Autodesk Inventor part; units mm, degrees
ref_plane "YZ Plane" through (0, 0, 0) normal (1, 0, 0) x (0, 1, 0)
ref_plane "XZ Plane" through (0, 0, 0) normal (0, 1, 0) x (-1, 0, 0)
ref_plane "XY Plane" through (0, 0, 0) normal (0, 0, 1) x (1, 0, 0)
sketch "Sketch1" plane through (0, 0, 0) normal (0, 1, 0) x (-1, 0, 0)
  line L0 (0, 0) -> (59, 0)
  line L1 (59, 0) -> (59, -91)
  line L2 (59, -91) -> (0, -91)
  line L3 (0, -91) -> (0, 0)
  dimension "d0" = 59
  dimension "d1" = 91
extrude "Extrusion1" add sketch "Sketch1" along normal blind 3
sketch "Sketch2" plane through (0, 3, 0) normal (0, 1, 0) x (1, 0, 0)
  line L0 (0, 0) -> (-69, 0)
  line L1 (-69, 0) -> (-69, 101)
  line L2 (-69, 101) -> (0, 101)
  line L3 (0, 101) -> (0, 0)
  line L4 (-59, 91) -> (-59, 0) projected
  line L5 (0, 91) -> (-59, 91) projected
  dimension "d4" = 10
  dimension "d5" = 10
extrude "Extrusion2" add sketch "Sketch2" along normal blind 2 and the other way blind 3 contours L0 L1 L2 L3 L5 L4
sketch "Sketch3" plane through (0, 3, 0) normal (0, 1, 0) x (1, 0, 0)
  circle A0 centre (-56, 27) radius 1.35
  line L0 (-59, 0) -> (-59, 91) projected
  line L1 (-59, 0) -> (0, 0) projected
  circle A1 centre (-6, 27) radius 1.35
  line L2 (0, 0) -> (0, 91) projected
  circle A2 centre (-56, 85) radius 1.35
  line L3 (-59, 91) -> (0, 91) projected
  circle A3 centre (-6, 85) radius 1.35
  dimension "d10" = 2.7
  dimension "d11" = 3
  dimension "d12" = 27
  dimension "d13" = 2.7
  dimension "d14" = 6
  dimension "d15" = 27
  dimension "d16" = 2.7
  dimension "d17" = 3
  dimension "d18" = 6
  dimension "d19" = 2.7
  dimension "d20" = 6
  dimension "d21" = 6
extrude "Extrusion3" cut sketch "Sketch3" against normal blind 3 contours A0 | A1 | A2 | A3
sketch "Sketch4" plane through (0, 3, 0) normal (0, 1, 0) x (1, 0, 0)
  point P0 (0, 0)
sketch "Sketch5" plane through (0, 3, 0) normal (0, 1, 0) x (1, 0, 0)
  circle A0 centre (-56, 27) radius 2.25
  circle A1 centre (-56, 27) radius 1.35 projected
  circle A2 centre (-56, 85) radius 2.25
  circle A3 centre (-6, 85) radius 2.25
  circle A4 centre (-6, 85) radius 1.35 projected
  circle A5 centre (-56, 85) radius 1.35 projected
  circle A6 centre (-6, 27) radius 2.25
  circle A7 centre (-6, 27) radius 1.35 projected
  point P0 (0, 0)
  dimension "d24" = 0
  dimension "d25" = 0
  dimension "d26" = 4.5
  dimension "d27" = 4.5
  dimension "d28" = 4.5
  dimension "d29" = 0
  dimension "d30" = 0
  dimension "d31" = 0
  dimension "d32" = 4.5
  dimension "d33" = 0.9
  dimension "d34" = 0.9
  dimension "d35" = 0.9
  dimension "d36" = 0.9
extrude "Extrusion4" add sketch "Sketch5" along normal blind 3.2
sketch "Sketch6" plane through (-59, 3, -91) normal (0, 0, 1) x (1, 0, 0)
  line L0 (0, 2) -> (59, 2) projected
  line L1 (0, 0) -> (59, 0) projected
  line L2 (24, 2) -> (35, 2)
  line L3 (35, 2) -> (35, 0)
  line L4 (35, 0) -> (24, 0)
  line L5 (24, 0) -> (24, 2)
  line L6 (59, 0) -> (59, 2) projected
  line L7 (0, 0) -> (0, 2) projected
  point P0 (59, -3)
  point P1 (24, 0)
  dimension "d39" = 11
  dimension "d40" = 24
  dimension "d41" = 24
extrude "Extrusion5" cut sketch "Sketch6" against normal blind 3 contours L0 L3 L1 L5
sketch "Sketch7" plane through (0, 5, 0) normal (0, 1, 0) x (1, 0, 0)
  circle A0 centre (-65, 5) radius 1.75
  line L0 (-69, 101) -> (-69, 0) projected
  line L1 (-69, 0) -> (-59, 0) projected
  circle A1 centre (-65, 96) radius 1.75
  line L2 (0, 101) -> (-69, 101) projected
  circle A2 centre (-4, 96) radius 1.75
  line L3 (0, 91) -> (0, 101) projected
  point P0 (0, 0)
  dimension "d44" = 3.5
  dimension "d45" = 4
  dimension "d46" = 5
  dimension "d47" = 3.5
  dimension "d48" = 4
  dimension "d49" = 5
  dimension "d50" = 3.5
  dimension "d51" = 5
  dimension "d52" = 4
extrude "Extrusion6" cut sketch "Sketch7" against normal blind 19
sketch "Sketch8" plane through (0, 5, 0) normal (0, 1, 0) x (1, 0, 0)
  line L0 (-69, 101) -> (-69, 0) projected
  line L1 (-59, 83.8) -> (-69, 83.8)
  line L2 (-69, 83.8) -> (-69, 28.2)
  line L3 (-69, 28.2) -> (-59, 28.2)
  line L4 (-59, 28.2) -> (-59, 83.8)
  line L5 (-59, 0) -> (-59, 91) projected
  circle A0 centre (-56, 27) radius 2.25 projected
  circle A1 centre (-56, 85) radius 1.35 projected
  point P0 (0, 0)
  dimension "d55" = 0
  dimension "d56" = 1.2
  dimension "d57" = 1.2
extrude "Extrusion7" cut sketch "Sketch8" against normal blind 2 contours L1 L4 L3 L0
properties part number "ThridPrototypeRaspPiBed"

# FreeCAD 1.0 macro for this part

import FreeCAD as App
import Part
import Sketcher
from FreeCAD import Vector


def add_polygon(sketch, points):
    """Adds a closed chain of lines whose ends are joined by coincident constraints."""
    first, n = sketch.GeometryCount, len(points)
    for a, b in zip(points, points[1:] + points[:1]):
        sketch.addGeometry(Part.LineSegment(App.Vector(*a, 0), App.Vector(*b, 0)), False)
    for i in range(n):
        sketch.addConstraint(Sketcher.Constraint("Coincident", first + i, 2, first + (i + 1) % n, 1))

doc = App.newDocument("Part")
params = doc.addObject("Spreadsheet::Sheet", "Params")
for row, (alias, value) in enumerate([
    ("sketch1_width", "59 mm"),
    ("sketch1_height", "91 mm"),
    ("pad1_length", "3 mm"),
    ("sketch2_width", "10 mm"),
    ("sketch2_width2", "59 mm"),
    ("sketch2_height", "91 mm"),
    ("pad2_length", "2 mm"),
    ("pad2_length2", "3 mm"),
    ("sketch3_diameter", "2.7 mm"),
    ("pocket1_length", "3 mm"),
    ("sketch4_diameter", "4.5 mm"),
    ("sketch4_diameter2", "2.7 mm"),
    ("pad3_length", "3.2 mm"),
    ("sketch5_width", "11 mm"),
    ("sketch5_height", "2 mm"),
    ("pocket2_length", "3 mm"),
    ("sketch6_diameter", "3.5 mm"),
    ("pocket3_length", "19 mm"),
    ("sketch7_width", "10 mm"),
    ("sketch7_height", "55.6 mm"),
    ("pocket4_length", "2 mm"),
], start=1):
    params.set(f"A{row}", alias)
    params.set(f"B{row}", "=" + value)
    params.setAlias(f"B{row}", alias)

body = doc.addObject("PartDesign::Body", "Body")

sketch1 = body.newObject("Sketcher::SketchObject", "Sketch")
sketch1.AttachmentSupport = (doc.getObject("XZ_Plane"), [""])
sketch1.MapMode = "FlatFace"
add_polygon(sketch1, [(-59, 0), (0, 0), (0, -91), (-59, -91)])
sketch1.addConstraint(Sketcher.Constraint("Horizontal", 0))
sketch1.addConstraint(Sketcher.Constraint("Vertical", 1))
sketch1.addConstraint(Sketcher.Constraint("Horizontal", 2))
sketch1.addConstraint(Sketcher.Constraint("Vertical", 3))
sketch1.addConstraint(Sketcher.Constraint("Coincident", 0, 2, -1, 1))
sketch1.addConstraint(Sketcher.Constraint("DistanceX", 0, 1, 0, 2, 59.0))
sketch1.addConstraint(Sketcher.Constraint("DistanceY", 1, 2, 1, 1, 91.0))
sketch1.setExpression("Constraints[9]", "Params.sketch1_width")
sketch1.setExpression("Constraints[10]", "Params.sketch1_height")
pad1 = body.newObject("PartDesign::Pad", "Pad")
pad1.Profile = sketch1
pad1.setExpression("Length", "Params.pad1_length")
pad1.Reversed = True

sketch2 = body.newObject("Sketcher::SketchObject", "Sketch001")
sketch2.AttachmentSupport = (doc.getObject("XZ_Plane"), [""])
sketch2.MapMode = "FlatFace"
sketch2.AttachmentOffset = App.Placement(Vector(0, 0, -3), App.Rotation())
add_polygon(sketch2, [(-69, 0), (-59, 0), (-59, -91), (0, -91), (0, -101), (-69, -101)])
sketch2.addConstraint(Sketcher.Constraint("Horizontal", 0))
sketch2.addConstraint(Sketcher.Constraint("Vertical", 1))
sketch2.addConstraint(Sketcher.Constraint("Horizontal", 2))
sketch2.addConstraint(Sketcher.Constraint("Vertical", 3))
sketch2.addConstraint(Sketcher.Constraint("Horizontal", 4))
sketch2.addConstraint(Sketcher.Constraint("Vertical", 5))
sketch2.addConstraint(Sketcher.Constraint("PointOnObject", 0, 2, -1))
sketch2.addConstraint(Sketcher.Constraint("PointOnObject", 2, 2, -2))
sketch2.addConstraint(Sketcher.Constraint("Equal", 0, 3))
sketch2.addConstraint(Sketcher.Constraint("DistanceX", 0, 1, 0, 2, 10.0))
sketch2.addConstraint(Sketcher.Constraint("DistanceX", 2, 1, 2, 2, 59.0))
sketch2.addConstraint(Sketcher.Constraint("DistanceY", 1, 2, 1, 1, 91.0))
sketch2.setExpression("Constraints[15]", "Params.sketch2_width")
sketch2.setExpression("Constraints[16]", "Params.sketch2_width2")
sketch2.setExpression("Constraints[17]", "Params.sketch2_height")
pad2 = body.newObject("PartDesign::Pad", "Pad001")
pad2.Profile = sketch2
pad2.Type = "TwoLengths"
pad2.setExpression("Length", "Params.pad2_length")
pad2.setExpression("Length2", "Params.pad2_length2")
pad2.Reversed = True

sketch3 = body.newObject("Sketcher::SketchObject", "Sketch002")
sketch3.AttachmentSupport = (doc.getObject("XZ_Plane"), [""])
sketch3.MapMode = "FlatFace"
sketch3.AttachmentOffset = App.Placement(Vector(0, 0, -3), App.Rotation())
sketch3.addGeometry(Part.Circle(Vector(-56, -27, 0), Vector(0, 0, 1), 1.35), False)
sketch3.addGeometry(Part.Circle(Vector(-6, -27, 0), Vector(0, 0, 1), 1.35), False)
sketch3.addGeometry(Part.Circle(Vector(-56, -85, 0), Vector(0, 0, 1), 1.35), False)
sketch3.addGeometry(Part.Circle(Vector(-6, -85, 0), Vector(0, 0, 1), 1.35), False)
sketch3.addConstraint(Sketcher.Constraint("Equal", 0, 1))
sketch3.addConstraint(Sketcher.Constraint("Equal", 1, 2))
sketch3.addConstraint(Sketcher.Constraint("Equal", 2, 3))
sketch3.addConstraint(Sketcher.Constraint("Horizontal", 0, 3, 1, 3))
sketch3.addConstraint(Sketcher.Constraint("Horizontal", 2, 3, 3, 3))
sketch3.addConstraint(Sketcher.Constraint("Vertical", 0, 3, 2, 3))
sketch3.addConstraint(Sketcher.Constraint("Vertical", 1, 3, 3, 3))
sketch3.addConstraint(Sketcher.Constraint("Diameter", 0, 2.7))
sketch3.addConstraint(Sketcher.Constraint("DistanceY", 0, 3, -1, 1, 27.0))
sketch3.addConstraint(Sketcher.Constraint("DistanceX", 1, 3, -1, 1, 6.0))
sketch3.addConstraint(Sketcher.Constraint("DistanceX", 0, 3, -1, 1, 56.0))
sketch3.addConstraint(Sketcher.Constraint("DistanceY", 2, 3, -1, 1, 85.0))
sketch3.setExpression("Constraints[7]", "Params.sketch3_diameter")
pocket1 = body.newObject("PartDesign::Pocket", "Pocket")
pocket1.Profile = sketch3
pocket1.setExpression("Length", "Params.pocket1_length")
pocket1.Reversed = True

sketch4 = body.newObject("Sketcher::SketchObject", "Sketch003")
sketch4.AttachmentSupport = (doc.getObject("XZ_Plane"), [""])
sketch4.MapMode = "FlatFace"
sketch4.AttachmentOffset = App.Placement(Vector(0, 0, -3), App.Rotation())
sketch4.addGeometry(Part.Circle(Vector(-56, -27, 0), Vector(0, 0, 1), 2.25), False)
sketch4.addGeometry(Part.Circle(Vector(-56, -27, 0), Vector(0, 0, 1), 1.35), False)
sketch4.addGeometry(Part.Circle(Vector(-56, -85, 0), Vector(0, 0, 1), 2.25), False)
sketch4.addGeometry(Part.Circle(Vector(-56, -85, 0), Vector(0, 0, 1), 1.35), False)
sketch4.addGeometry(Part.Circle(Vector(-6, -85, 0), Vector(0, 0, 1), 2.25), False)
sketch4.addGeometry(Part.Circle(Vector(-6, -85, 0), Vector(0, 0, 1), 1.35), False)
sketch4.addGeometry(Part.Circle(Vector(-6, -27, 0), Vector(0, 0, 1), 2.25), False)
sketch4.addGeometry(Part.Circle(Vector(-6, -27, 0), Vector(0, 0, 1), 1.35), False)
sketch4.addConstraint(Sketcher.Constraint("Coincident", 1, 3, 0, 3))
sketch4.addConstraint(Sketcher.Constraint("Coincident", 3, 3, 2, 3))
sketch4.addConstraint(Sketcher.Constraint("Coincident", 5, 3, 4, 3))
sketch4.addConstraint(Sketcher.Constraint("Coincident", 7, 3, 6, 3))
sketch4.addConstraint(Sketcher.Constraint("Equal", 0, 2))
sketch4.addConstraint(Sketcher.Constraint("Equal", 1, 3))
sketch4.addConstraint(Sketcher.Constraint("Equal", 2, 4))
sketch4.addConstraint(Sketcher.Constraint("Equal", 3, 5))
sketch4.addConstraint(Sketcher.Constraint("Equal", 4, 6))
sketch4.addConstraint(Sketcher.Constraint("Equal", 5, 7))
sketch4.addConstraint(Sketcher.Constraint("Horizontal", 3, 3, 4, 3))
sketch4.addConstraint(Sketcher.Constraint("Horizontal", 1, 3, 6, 3))
sketch4.addConstraint(Sketcher.Constraint("Vertical", 1, 3, 2, 3))
sketch4.addConstraint(Sketcher.Constraint("Vertical", 5, 3, 6, 3))
sketch4.addConstraint(Sketcher.Constraint("Diameter", 0, 4.5))
sketch4.addConstraint(Sketcher.Constraint("Diameter", 1, 2.7))
sketch4.addConstraint(Sketcher.Constraint("DistanceX", 0, 3, -1, 1, 56.0))
sketch4.addConstraint(Sketcher.Constraint("DistanceY", 0, 3, -1, 1, 27.0))
sketch4.addConstraint(Sketcher.Constraint("DistanceY", 2, 3, -1, 1, 85.0))
sketch4.addConstraint(Sketcher.Constraint("DistanceX", 4, 3, -1, 1, 6.0))
sketch4.setExpression("Constraints[14]", "Params.sketch4_diameter")
sketch4.setExpression("Constraints[15]", "Params.sketch4_diameter2")
pad3 = body.newObject("PartDesign::Pad", "Pad002")
pad3.Profile = sketch4
pad3.setExpression("Length", "Params.pad3_length")
pad3.Reversed = True

sketch5 = body.newObject("Sketcher::SketchObject", "Sketch004")
sketch5.AttachmentSupport = (doc.getObject("XY_Plane"), [""])
sketch5.MapMode = "FlatFace"
sketch5.AttachmentOffset = App.Placement(Vector(0, 0, -91), App.Rotation())
add_polygon(sketch5, [(-24, 5), (-35, 5), (-35, 3), (-24, 3)])
sketch5.addConstraint(Sketcher.Constraint("Horizontal", 0))
sketch5.addConstraint(Sketcher.Constraint("Vertical", 1))
sketch5.addConstraint(Sketcher.Constraint("Horizontal", 2))
sketch5.addConstraint(Sketcher.Constraint("Vertical", 3))
sketch5.addConstraint(Sketcher.Constraint("DistanceX", 0, 2, 0, 1, 11.0))
sketch5.addConstraint(Sketcher.Constraint("DistanceX", 2, 2, -1, 1, 24.0))
sketch5.addConstraint(Sketcher.Constraint("DistanceY", 1, 2, 1, 1, 2.0))
sketch5.addConstraint(Sketcher.Constraint("DistanceY", -1, 1, 0, 2, 5.0))
sketch5.setExpression("Constraints[8]", "Params.sketch5_width")
sketch5.setExpression("Constraints[10]", "Params.sketch5_height")
pocket2 = body.newObject("PartDesign::Pocket", "Pocket001")
pocket2.Profile = sketch5
pocket2.setExpression("Length", "Params.pocket2_length")

sketch6 = body.newObject("Sketcher::SketchObject", "Sketch005")
sketch6.AttachmentSupport = (doc.getObject("XZ_Plane"), [""])
sketch6.MapMode = "FlatFace"
sketch6.AttachmentOffset = App.Placement(Vector(0, 0, -5), App.Rotation())
sketch6.addGeometry(Part.Circle(Vector(-65, -5, 0), Vector(0, 0, 1), 1.75), False)
sketch6.addGeometry(Part.Circle(Vector(-65, -96, 0), Vector(0, 0, 1), 1.75), False)
sketch6.addGeometry(Part.Circle(Vector(-4, -96, 0), Vector(0, 0, 1), 1.75), False)
sketch6.addConstraint(Sketcher.Constraint("Equal", 0, 1))
sketch6.addConstraint(Sketcher.Constraint("Equal", 1, 2))
sketch6.addConstraint(Sketcher.Constraint("Horizontal", 1, 3, 2, 3))
sketch6.addConstraint(Sketcher.Constraint("Vertical", 0, 3, 1, 3))
sketch6.addConstraint(Sketcher.Constraint("Diameter", 0, 3.5))
sketch6.addConstraint(Sketcher.Constraint("DistanceY", 0, 3, -1, 1, 5.0))
sketch6.addConstraint(Sketcher.Constraint("DistanceX", 2, 3, -1, 1, 4.0))
sketch6.addConstraint(Sketcher.Constraint("DistanceX", 0, 3, -1, 1, 65.0))
sketch6.addConstraint(Sketcher.Constraint("DistanceY", 1, 3, -1, 1, 96.0))
sketch6.setExpression("Constraints[4]", "Params.sketch6_diameter")
pocket3 = body.newObject("PartDesign::Pocket", "Pocket002")
pocket3.Profile = sketch6
pocket3.setExpression("Length", "Params.pocket3_length")
pocket3.Reversed = True

sketch7 = body.newObject("Sketcher::SketchObject", "Sketch006")
sketch7.AttachmentSupport = (doc.getObject("XZ_Plane"), [""])
sketch7.MapMode = "FlatFace"
sketch7.AttachmentOffset = App.Placement(Vector(0, 0, -5), App.Rotation())
add_polygon(sketch7, [(-59, -83.8), (-69, -83.8), (-69, -28.2), (-59, -28.2)])
sketch7.addConstraint(Sketcher.Constraint("Horizontal", 0))
sketch7.addConstraint(Sketcher.Constraint("Vertical", 1))
sketch7.addConstraint(Sketcher.Constraint("Horizontal", 2))
sketch7.addConstraint(Sketcher.Constraint("Vertical", 3))
sketch7.addConstraint(Sketcher.Constraint("DistanceX", 0, 2, 0, 1, 10.0))
sketch7.addConstraint(Sketcher.Constraint("DistanceY", 1, 1, 1, 2, 55.6))
sketch7.addConstraint(Sketcher.Constraint("DistanceX", 0, 2, -1, 1, 69.0))
sketch7.addConstraint(Sketcher.Constraint("DistanceY", 0, 2, -1, 1, 83.8))
sketch7.setExpression("Constraints[8]", "Params.sketch7_width")
sketch7.setExpression("Constraints[9]", "Params.sketch7_height")
pocket4 = body.newObject("PartDesign::Pocket", "Pocket003")
pocket4.Profile = sketch7
pocket4.setExpression("Length", "Params.pocket4_length")
pocket4.Reversed = True

doc.recompute()
